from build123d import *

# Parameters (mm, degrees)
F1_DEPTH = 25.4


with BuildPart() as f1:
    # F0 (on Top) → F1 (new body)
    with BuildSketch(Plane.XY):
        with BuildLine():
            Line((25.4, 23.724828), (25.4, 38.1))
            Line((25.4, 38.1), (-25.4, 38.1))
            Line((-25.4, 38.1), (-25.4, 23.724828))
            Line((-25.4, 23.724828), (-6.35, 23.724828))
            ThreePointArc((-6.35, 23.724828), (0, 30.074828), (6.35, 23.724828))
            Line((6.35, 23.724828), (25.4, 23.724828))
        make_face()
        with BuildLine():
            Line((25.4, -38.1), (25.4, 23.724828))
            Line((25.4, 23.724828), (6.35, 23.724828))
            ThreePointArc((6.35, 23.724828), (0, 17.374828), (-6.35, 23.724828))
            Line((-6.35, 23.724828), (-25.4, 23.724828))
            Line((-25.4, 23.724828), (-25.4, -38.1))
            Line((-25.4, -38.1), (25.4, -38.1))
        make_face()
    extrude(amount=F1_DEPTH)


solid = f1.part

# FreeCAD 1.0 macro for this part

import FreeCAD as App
import Part
import Sketcher

V = App.Vector
Q = App.Units.Quantity


def add_polygon(sketch, points):
    """Adds a closed chain of lines whose ends are joined by coincident constraints."""
    first, n = sketch.GeometryCount, len(points)
    for a, b in zip(points, points[1:] + points[:1]):
        sketch.addGeometry(Part.LineSegment(App.Vector(*a, 0), App.Vector(*b, 0)), False)
    for i in range(n):
        sketch.addConstraint(Sketcher.Constraint("Coincident", first + i, 2, first + (i + 1) % n, 1))

doc = App.newDocument("Part")
body = doc.addObject("PartDesign::Body", "Body")

# Sketch on XY plane
sketch1 = body.newObject("Sketcher::SketchObject", "Sketch")
sketch1.AttachmentSupport = (doc.getObject("XY_Plane"), [""])
sketch1.MapMode = "FlatFace"
add_polygon(sketch1, [(25.4, 38.1), (-25.4, 38.1), (-25.4, -38.1), (25.4, -38.1)])  # lines 0-3
sketch1.addGeometry(Part.Circle(V(0, 23.724828, 0), V(0, 0, 1), 6.35), False)  # 4
sketch1.addConstraint([
    Sketcher.Constraint("Horizontal", 0),
    Sketcher.Constraint("Vertical", 1),
    Sketcher.Constraint("Horizontal", 2),
    Sketcher.Constraint("Vertical", 3),
    Sketcher.Constraint("Symmetric", 0, 2, 2, 2, -1, 1),
    Sketcher.Constraint("PointOnObject", 4, 3, -2),
    Sketcher.Constraint("Diameter", 4, Q("0.5 in")),
    Sketcher.Constraint("DistanceX", 0, 2, 0, 1, Q("2 in")),
    Sketcher.Constraint("DistanceY", 1, 2, 1, 1, Q("3 in")),
    Sketcher.Constraint("DistanceY", -1, 1, 4, 3, Q("23.724828 mm")),
])
pad1 = body.newObject("PartDesign::Pad", "Pad")
pad1.Profile = sketch1
pad1.Length = Q("1 in")

doc.recompute()
